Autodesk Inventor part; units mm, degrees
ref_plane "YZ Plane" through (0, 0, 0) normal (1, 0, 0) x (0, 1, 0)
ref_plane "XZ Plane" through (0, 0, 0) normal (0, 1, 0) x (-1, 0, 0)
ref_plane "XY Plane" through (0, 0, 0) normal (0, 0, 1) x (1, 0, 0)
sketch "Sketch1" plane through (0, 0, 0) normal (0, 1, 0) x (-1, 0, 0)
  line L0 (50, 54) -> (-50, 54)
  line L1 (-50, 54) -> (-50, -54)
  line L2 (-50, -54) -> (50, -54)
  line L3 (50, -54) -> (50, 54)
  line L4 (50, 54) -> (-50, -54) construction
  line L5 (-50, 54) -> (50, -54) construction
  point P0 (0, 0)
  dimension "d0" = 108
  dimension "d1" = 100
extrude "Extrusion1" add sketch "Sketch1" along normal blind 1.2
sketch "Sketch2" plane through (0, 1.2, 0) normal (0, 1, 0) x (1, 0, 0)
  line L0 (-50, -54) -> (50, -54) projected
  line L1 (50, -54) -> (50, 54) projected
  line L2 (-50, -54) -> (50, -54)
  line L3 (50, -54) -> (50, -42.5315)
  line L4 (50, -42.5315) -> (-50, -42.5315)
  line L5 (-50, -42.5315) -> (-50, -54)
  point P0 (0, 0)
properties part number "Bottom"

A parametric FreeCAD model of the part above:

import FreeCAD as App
import Part
import Sketcher
Q = App.Units.Quantity


def add_polygon(sketch, points):
    """Adds a closed chain of lines whose ends are joined by coincident constraints."""
    first, n = sketch.GeometryCount, len(points)
    for a, b in zip(points, points[1:] + points[:1]):
        sketch.addGeometry(Part.LineSegment(App.Vector(*a, 0), App.Vector(*b, 0)), False)
    for i in range(n):
        sketch.addConstraint(Sketcher.Constraint("Coincident", first + i, 2, first + (i + 1) % n, 1))

doc = App.newDocument("Part")
params = doc.addObject("Spreadsheet::Sheet", "Params")
for row, (alias, value) in enumerate([
    ("sketch1_width", "100 mm"),
    ("sketch1_height", "108 mm"),
    ("pad1_length", "1.2 mm"),
], start=1):
    params.set(f"A{row}", alias)
    params.set(f"B{row}", "=" + value)
    params.setAlias(f"B{row}", alias)

body = doc.addObject("PartDesign::Body", "Body")

sketch1 = body.newObject("Sketcher::SketchObject", "Sketch")
sketch1.AttachmentSupport = (doc.getObject("XZ_Plane"), [""])
sketch1.MapMode = "FlatFace"
add_polygon(sketch1, [(-50, -54), (-50, 54), (50, 54), (50, -54)])
sketch1.addConstraint([
    Sketcher.Constraint("Vertical", 0),
    Sketcher.Constraint("Horizontal", 1),
    Sketcher.Constraint("Vertical", 2),
    Sketcher.Constraint("Horizontal", 3),
    Sketcher.Constraint("Symmetric", 0, 2, 2, 2, -1, 1),
    Sketcher.Constraint("DistanceX", 1, 1, 1, 2, Q("100 mm")),
    Sketcher.Constraint("DistanceY", 0, 1, 0, 2, Q("108 mm")),
])
sketch1.setExpression("Constraints[9]", "Params.sketch1_width")
sketch1.setExpression("Constraints[10]", "Params.sketch1_height")
pad1 = body.newObject("PartDesign::Pad", "Pad")
pad1.Profile = sketch1
pad1.setExpression("Length", "Params.pad1_length")
pad1.Reversed = True

doc.recompute()
